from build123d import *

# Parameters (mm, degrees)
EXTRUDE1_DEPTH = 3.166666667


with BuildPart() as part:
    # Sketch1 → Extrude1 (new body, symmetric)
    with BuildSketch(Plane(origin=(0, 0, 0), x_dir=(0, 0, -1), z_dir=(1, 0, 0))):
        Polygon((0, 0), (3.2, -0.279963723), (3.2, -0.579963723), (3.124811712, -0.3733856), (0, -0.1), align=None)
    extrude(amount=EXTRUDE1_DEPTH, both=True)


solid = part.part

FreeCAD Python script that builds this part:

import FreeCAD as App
import Part
import Sketcher
Q = App.Units.Quantity


def add_polygon(sketch, points):
    """Adds a closed chain of lines whose ends are joined by coincident constraints."""
    first, n = sketch.GeometryCount, len(points)
    for a, b in zip(points, points[1:] + points[:1]):
        sketch.addGeometry(Part.LineSegment(App.Vector(*a, 0), App.Vector(*b, 0)), False)
    for i in range(n):
        sketch.addConstraint(Sketcher.Constraint("Coincident", first + i, 2, first + (i + 1) % n, 1))

doc = App.newDocument("Part")
params = doc.addObject("Spreadsheet::Sheet", "Params")
for row, (alias, value) in enumerate([
    ("sketch1_width", "0.1 mm"),
    ("sketch1_width2", "0.3 mm"),
    ("pad1_length", "6.333333 mm"),
], start=1):
    params.set(f"A{row}", alias)
    params.set(f"B{row}", "=" + value)
    params.setAlias(f"B{row}", alias)

body = doc.addObject("PartDesign::Body", "Body")

# Sketch on YZ plane
sketch1 = body.newObject("Sketcher::SketchObject", "Sketch")
sketch1.AttachmentSupport = (doc.getObject("YZ_Plane"), [""])
sketch1.MapMode = "FlatFace"
add_polygon(sketch1, [(-0.28, -3.2), (0, 0), (-0.1, 0), (-0.37, -3.12), (-0.58, -3.2)])  # lines 0-4
sketch1.addConstraint(Sketcher.Constraint("Horizontal", 1))
sketch1.addConstraint(Sketcher.Constraint("Horizontal", 4))
sketch1.addConstraint(Sketcher.Constraint("Coincident", 0, 2, -1, 1))
sketch1.addConstraint(Sketcher.Constraint("Parallel", 0, 2))
sketch1.addConstraint(Sketcher.Constraint("Angle", 0, Q("85 deg")))
sketch1.addConstraint(Sketcher.Constraint("Angle", 3, Q("-160 deg")))
sketch1.addConstraint(Sketcher.Constraint("DistanceX", 1, 2, 1, 1, Q("0.1 mm")))
sketch1.addConstraint(Sketcher.Constraint("DistanceX", 4, 1, 4, 2, Q("0.3 mm")))
sketch1.addConstraint(Sketcher.Constraint("DistanceY", 3, 2, -1, 1, Q("3.2 mm")))
sketch1.setExpression("Constraints[11]", "Params.sketch1_width")
sketch1.setExpression("Constraints[12]", "Params.sketch1_width2")
pad1 = body.newObject("PartDesign::Pad", "Pad")
pad1.Profile = sketch1
pad1.setExpression("Length", "Params.pad1_length")
pad1.Midplane = True

doc.recompute()
